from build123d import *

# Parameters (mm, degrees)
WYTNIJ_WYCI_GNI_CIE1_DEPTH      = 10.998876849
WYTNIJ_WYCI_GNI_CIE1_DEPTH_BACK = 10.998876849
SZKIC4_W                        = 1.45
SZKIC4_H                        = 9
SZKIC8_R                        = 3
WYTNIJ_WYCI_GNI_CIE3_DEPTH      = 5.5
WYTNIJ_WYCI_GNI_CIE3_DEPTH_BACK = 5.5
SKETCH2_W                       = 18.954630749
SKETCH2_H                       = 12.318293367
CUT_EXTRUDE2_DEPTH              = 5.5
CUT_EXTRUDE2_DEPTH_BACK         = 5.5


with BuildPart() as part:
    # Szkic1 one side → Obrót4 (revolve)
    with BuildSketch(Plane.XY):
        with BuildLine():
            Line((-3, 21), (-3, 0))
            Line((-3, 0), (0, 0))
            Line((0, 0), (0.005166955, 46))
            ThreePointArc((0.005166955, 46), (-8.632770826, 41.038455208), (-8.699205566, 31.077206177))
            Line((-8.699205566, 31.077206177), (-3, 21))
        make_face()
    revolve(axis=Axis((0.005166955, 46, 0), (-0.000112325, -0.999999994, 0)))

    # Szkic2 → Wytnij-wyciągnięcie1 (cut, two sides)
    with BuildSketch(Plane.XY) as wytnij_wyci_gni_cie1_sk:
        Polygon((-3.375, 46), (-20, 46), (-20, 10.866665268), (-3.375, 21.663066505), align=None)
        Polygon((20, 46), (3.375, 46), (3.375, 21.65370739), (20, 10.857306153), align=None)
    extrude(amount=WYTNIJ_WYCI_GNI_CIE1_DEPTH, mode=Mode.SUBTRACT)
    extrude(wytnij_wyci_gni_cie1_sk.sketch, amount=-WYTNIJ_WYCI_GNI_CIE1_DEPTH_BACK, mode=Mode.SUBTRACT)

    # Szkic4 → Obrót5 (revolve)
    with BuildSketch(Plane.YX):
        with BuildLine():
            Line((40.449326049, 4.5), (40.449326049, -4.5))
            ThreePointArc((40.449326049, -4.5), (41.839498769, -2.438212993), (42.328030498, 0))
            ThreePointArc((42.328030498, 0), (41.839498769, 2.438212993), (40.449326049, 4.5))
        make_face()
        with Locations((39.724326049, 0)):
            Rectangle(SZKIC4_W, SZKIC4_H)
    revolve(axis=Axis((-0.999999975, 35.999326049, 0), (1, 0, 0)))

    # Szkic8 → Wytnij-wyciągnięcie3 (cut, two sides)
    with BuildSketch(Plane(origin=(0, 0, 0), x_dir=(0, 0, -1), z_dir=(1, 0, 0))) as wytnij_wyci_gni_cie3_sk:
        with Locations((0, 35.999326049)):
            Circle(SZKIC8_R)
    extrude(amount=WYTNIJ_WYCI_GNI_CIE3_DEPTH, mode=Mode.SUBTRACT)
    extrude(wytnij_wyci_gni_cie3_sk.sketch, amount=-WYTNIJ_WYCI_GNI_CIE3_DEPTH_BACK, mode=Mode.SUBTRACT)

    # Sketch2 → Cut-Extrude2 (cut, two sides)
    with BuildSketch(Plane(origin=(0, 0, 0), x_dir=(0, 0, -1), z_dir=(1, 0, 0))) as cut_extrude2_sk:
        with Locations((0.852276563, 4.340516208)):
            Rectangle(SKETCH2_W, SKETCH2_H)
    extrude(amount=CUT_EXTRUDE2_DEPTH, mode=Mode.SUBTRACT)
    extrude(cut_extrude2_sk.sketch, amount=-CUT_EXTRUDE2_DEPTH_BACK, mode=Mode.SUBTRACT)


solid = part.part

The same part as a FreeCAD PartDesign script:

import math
import FreeCAD as App
import Part
import Sketcher
from FreeCAD import Vector
Q = App.Units.Quantity

doc = App.newDocument("Part")
params = doc.addObject("Spreadsheet::Sheet", "Params")
for row, (alias, value) in enumerate([
    ("sketch1_radius", "10 mm"),
    ("sketch1_width", "3 mm"),
    ("sketch1_height", "21 mm"),
    ("sketch1_length", "46 mm"),
    ("revolution_angle", "360 deg"),
    ("sketch3_width", "9 mm"),
    ("sketch3_height", "1.45 mm"),
    ("revolution2_angle", "360 deg"),
    ("sketch4_diameter", "6 mm"),
], start=1):
    params.set(f"A{row}", alias)
    params.set(f"B{row}", "=" + value)
    params.setAlias(f"B{row}", alias)

body = doc.addObject("PartDesign::Body", "Body")

# Sketch on XY plane
sketch1 = body.newObject("Sketcher::SketchObject", "Sketch")
sketch1.AttachmentSupport = (doc.getObject("XY_Plane"), [""])
sketch1.MapMode = "FlatFace"
sketch1.addGeometry([
    Part.LineSegment(Vector(-3, 21, 0), Vector(-3, 0, 0)),  # 0
    Part.LineSegment(Vector(-3, 0, 0), Vector(0, 0, 0)),  # 1
    Part.LineSegment(Vector(0, 0, 0), Vector(0, 46, 0)),  # 2
    Part.ArcOfCircle(Part.Circle(Vector(0, 36, 0), Vector(0, 0, 1), 10), math.radians(90), math.radians(209)),  # 3
    Part.LineSegment(Vector(-8.7, 31.1, 0), Vector(-3, 21, 0)),  # 4
], False)
sketch1.addGeometry(Part.LineSegment(Vector(0, 46, 0), Vector(0, 0, 0)), True)  # axis
sketch1.addConstraint([
    Sketcher.Constraint("Coincident", 0, 2, 1, 1),
    Sketcher.Constraint("Coincident", 1, 2, 2, 1),
    Sketcher.Constraint("Coincident", 2, 2, 3, 1),
    Sketcher.Constraint("Tangent", 3, 2, 4, 1),
    Sketcher.Constraint("Coincident", 4, 2, 0, 1),
    Sketcher.Constraint("Vertical", 0),
    Sketcher.Constraint("Horizontal", 1),
    Sketcher.Constraint("Coincident", 1, 2, -1, 1),
    Sketcher.Constraint("Coincident", 5, 1, 2, 2),
    Sketcher.Constraint("PointOnObject", 5, 2, -2),
    Sketcher.Constraint("Vertical", 3, 3, 2, 2),
    Sketcher.Constraint("Radius", 3, Q("10 mm")),
    Sketcher.Constraint("DistanceX", 1, 1, 1, 2, Q("3 mm")),
    Sketcher.Constraint("DistanceY", 0, 2, 0, 1, Q("21 mm")),
    Sketcher.Constraint("Distance", 2, Q("46 mm")),
    Sketcher.Constraint("Distance", 4, Q("11.577177 mm")),
    Sketcher.Constraint("Distance", 5, Q("46.000337 mm")),
])
sketch1.setExpression("Constraints[11]", "Params.sketch1_radius")
sketch1.setExpression("Constraints[12]", "Params.sketch1_width")
sketch1.setExpression("Constraints[13]", "Params.sketch1_height")
sketch1.setExpression("Constraints[14]", "Params.sketch1_length")
revolution = body.newObject("PartDesign::Revolution", "Revolution")
revolution.Profile = sketch1
revolution.ReferenceAxis = (sketch1, ["Axis0"])
revolution.setExpression("Angle", "Params.revolution_angle")

# Sketch on XY plane
sketch2 = body.newObject("Sketcher::SketchObject", "Sketch001")
sketch2.AttachmentSupport = (doc.getObject("XY_Plane"), [""])
sketch2.MapMode = "FlatFace"
sketch2.addGeometry([
    Part.LineSegment(Vector(-3, 46, 0), Vector(-20, 46, 0)),  # 0
    Part.LineSegment(Vector(-20, 46, 0), Vector(-20, 11, 0)),  # 1
    Part.LineSegment(Vector(-20, 11, 0), Vector(-3, 22, 0)),  # 2
    Part.LineSegment(Vector(-3, 22, 0), Vector(-3, 46, 0)),  # 3
    Part.LineSegment(Vector(20, 46, 0), Vector(3, 46, 0)),  # 4
    Part.LineSegment(Vector(3, 46, 0), Vector(3, 22, 0)),  # 5
    Part.LineSegment(Vector(3, 22, 0), Vector(20, 11, 0)),  # 6
    Part.LineSegment(Vector(20, 11, 0), Vector(20, 46, 0)),  # 7
], False)
sketch2.addConstraint([
    Sketcher.Constraint("Coincident", 0, 2, 1, 1),
    Sketcher.Constraint("Coincident", 1, 2, 2, 1),
    Sketcher.Constraint("Coincident", 2, 2, 3, 1),
    Sketcher.Constraint("Coincident", 3, 2, 0, 1),
    Sketcher.Constraint("Coincident", 4, 2, 5, 1),
    Sketcher.Constraint("Coincident", 5, 2, 6, 1),
    Sketcher.Constraint("Coincident", 6, 2, 7, 1),
    Sketcher.Constraint("Coincident", 7, 2, 4, 1),
    Sketcher.Constraint("Horizontal", 0),
    Sketcher.Constraint("Vertical", 1),
    Sketcher.Constraint("Vertical", 3),
    Sketcher.Constraint("Horizontal", 4),
    Sketcher.Constraint("Vertical", 5),
    Sketcher.Constraint("Vertical", 7),
    Sketcher.Constraint("Symmetric", 3, 2, 4, 2, -2),
    Sketcher.Constraint("Equal", 0, 4),
    Sketcher.Constraint("Equal", 2, 6),
    Sketcher.Constraint("Angle", 2, Q("33 deg")),
    Sketcher.Constraint("DistanceX", 0, 2, -1, 1, Q("20 mm")),
    Sketcher.Constraint("DistanceY", -1, 1, 0, 2, Q("46 mm")),
    Sketcher.Constraint("DistanceX", 0, 2, 0, 1, Q("16.625 mm")),
    Sketcher.Constraint("DistanceY", 1, 2, 1, 1, Q("35.133335 mm")),
    Sketcher.Constraint("DistanceY", 5, 2, 5, 1, Q("24.346293 mm")),
])
pocket1 = body.newObject("PartDesign::Pocket", "Pocket")
pocket1.Profile = sketch2
pocket1.Type = "ThroughAll"
pocket1.Midplane = True

# Sketch on XY plane
sketch3 = body.newObject("Sketcher::SketchObject", "Sketch002")
sketch3.AttachmentSupport = (doc.getObject("XY_Plane"), [""])
sketch3.MapMode = "FlatFace"
sketch3.addGeometry([
    Part.ArcOfCircle(Part.Circle(Vector(0, 36, 0), Vector(0, 0, 1), 6.3), math.radians(90), math.radians(135)),  # 0
    Part.ArcOfCircle(Part.Circle(Vector(0, 36, 0), Vector(0, 0, 1), 6.3), math.radians(45), math.radians(90)),  # 1
    Part.LineSegment(Vector(4.5, 40.4, 0), Vector(4.5, 39, 0)),  # 2
    Part.LineSegment(Vector(4.5, 39, 0), Vector(-4.5, 39, 0)),  # 3
    Part.LineSegment(Vector(-4.5, 39, 0), Vector(-4.5, 40.4, 0)),  # 4
], False)
sketch3.addGeometry(Part.LineSegment(Vector(-4.5, 36, 0), Vector(4.5, 36, 0)), True)  # axis
sketch3.addConstraint([
    Sketcher.Constraint("Tangent", 0, 1, 1, 2),
    Sketcher.Constraint("Coincident", 1, 1, 2, 1),
    Sketcher.Constraint("Coincident", 2, 2, 3, 1),
    Sketcher.Constraint("Coincident", 3, 2, 4, 1),
    Sketcher.Constraint("Coincident", 4, 2, 0, 2),
    Sketcher.Constraint("Vertical", 2),
    Sketcher.Constraint("Horizontal", 3),
    Sketcher.Constraint("Vertical", 4),
    Sketcher.Constraint("Horizontal", 5),
    Sketcher.Constraint("Equal", 0, 1),
    Sketcher.Constraint("Symmetric", 1, 1, 4, 2, -2),
    Sketcher.Constraint("PointOnObject", 0, 1, -2),
    Sketcher.Constraint("Horizontal", 1, 3, 5, 1),
    Sketcher.Constraint("Vertical", 4, 2, 5, 1),
    Sketcher.Constraint("Vertical", 2, 2, 5, 2),
    Sketcher.Constraint("DistanceX", 3, 2, 3, 1, Q("9 mm")),
    Sketcher.Constraint("DistanceY", 0, 3, 2, 2, Q("3 mm")),
    Sketcher.Constraint("DistanceY", 2, 2, 2, 1, Q("1.45 mm")),
    Sketcher.Constraint("DistanceY", -1, 1, 0, 1, Q("42.32803 mm")),
])
sketch3.setExpression("Constraints[15]", "Params.sketch3_width")
sketch3.setExpression("Constraints[17]", "Params.sketch3_height")
revolution2 = body.newObject("PartDesign::Revolution", "Revolution001")
revolution2.Profile = sketch3
revolution2.ReferenceAxis = (sketch3, ["Axis0"])
revolution2.setExpression("Angle", "Params.revolution2_angle")

# Sketch on YZ plane
sketch4 = body.newObject("Sketcher::SketchObject", "Sketch003")
sketch4.AttachmentSupport = (doc.getObject("YZ_Plane"), [""])
sketch4.MapMode = "FlatFace"
sketch4.addGeometry(Part.Circle(Vector(36, 0, 0), Vector(0, 0, 1), 3), False)
sketch4.addConstraint([
    Sketcher.Constraint("PointOnObject", 0, 3, -1),
    Sketcher.Constraint("Diameter", 0, Q("6 mm")),
    Sketcher.Constraint("DistanceX", -1, 1, 0, 3, Q("35.999326 mm")),
])
sketch4.setExpression("Constraints[1]", "Params.sketch4_diameter")
pocket2 = body.newObject("PartDesign::Pocket", "Pocket001")
pocket2.Profile = sketch4
pocket2.Type = "ThroughAll"
pocket2.Midplane = True

# Sketch on YZ plane
sketch5 = body.newObject("Sketcher::SketchObject", "Sketch004")
sketch5.AttachmentSupport = (doc.getObject("YZ_Plane"), [""])
sketch5.MapMode = "FlatFace"
sketch5.addGeometry([
    Part.LineSegment(Vector(10, 9, 0), Vector(-2, 9, 0)),
    Part.LineSegment(Vector(-2, 9, 0), Vector(-2, -10, 0)),
    Part.LineSegment(Vector(-2, -10, 0), Vector(10, -10, 0)),
    Part.LineSegment(Vector(10, -10, 0), Vector(10, 9, 0)),
], False)
sketch5.addConstraint([
    Sketcher.Constraint("Coincident", 0, 2, 1, 1),
    Sketcher.Constraint("Coincident", 1, 2, 2, 1),
    Sketcher.Constraint("Coincident", 2, 2, 3, 1),
    Sketcher.Constraint("Coincident", 3, 2, 0, 1),
    Sketcher.Constraint("Horizontal", 0),
    Sketcher.Constraint("Vertical", 1),
    Sketcher.Constraint("Horizontal", 2),
    Sketcher.Constraint("Vertical", 3),
    Sketcher.Constraint("DistanceY", 1, 2, 1, 1, Q("18.954631 mm")),
    Sketcher.Constraint("DistanceX", 0, 2, 0, 1, Q("12.318293 mm")),
    Sketcher.Constraint("DistanceX", 0, 2, -1, 1, Q("1.81863 mm")),
    Sketcher.Constraint("DistanceY", -1, 1, 0, 2, Q("8.625039 mm")),
])
pocket3 = body.newObject("PartDesign::Pocket", "Pocket002")
pocket3.Profile = sketch5
pocket3.Type = "ThroughAll"
pocket3.Midplane = True

doc.recompute()
